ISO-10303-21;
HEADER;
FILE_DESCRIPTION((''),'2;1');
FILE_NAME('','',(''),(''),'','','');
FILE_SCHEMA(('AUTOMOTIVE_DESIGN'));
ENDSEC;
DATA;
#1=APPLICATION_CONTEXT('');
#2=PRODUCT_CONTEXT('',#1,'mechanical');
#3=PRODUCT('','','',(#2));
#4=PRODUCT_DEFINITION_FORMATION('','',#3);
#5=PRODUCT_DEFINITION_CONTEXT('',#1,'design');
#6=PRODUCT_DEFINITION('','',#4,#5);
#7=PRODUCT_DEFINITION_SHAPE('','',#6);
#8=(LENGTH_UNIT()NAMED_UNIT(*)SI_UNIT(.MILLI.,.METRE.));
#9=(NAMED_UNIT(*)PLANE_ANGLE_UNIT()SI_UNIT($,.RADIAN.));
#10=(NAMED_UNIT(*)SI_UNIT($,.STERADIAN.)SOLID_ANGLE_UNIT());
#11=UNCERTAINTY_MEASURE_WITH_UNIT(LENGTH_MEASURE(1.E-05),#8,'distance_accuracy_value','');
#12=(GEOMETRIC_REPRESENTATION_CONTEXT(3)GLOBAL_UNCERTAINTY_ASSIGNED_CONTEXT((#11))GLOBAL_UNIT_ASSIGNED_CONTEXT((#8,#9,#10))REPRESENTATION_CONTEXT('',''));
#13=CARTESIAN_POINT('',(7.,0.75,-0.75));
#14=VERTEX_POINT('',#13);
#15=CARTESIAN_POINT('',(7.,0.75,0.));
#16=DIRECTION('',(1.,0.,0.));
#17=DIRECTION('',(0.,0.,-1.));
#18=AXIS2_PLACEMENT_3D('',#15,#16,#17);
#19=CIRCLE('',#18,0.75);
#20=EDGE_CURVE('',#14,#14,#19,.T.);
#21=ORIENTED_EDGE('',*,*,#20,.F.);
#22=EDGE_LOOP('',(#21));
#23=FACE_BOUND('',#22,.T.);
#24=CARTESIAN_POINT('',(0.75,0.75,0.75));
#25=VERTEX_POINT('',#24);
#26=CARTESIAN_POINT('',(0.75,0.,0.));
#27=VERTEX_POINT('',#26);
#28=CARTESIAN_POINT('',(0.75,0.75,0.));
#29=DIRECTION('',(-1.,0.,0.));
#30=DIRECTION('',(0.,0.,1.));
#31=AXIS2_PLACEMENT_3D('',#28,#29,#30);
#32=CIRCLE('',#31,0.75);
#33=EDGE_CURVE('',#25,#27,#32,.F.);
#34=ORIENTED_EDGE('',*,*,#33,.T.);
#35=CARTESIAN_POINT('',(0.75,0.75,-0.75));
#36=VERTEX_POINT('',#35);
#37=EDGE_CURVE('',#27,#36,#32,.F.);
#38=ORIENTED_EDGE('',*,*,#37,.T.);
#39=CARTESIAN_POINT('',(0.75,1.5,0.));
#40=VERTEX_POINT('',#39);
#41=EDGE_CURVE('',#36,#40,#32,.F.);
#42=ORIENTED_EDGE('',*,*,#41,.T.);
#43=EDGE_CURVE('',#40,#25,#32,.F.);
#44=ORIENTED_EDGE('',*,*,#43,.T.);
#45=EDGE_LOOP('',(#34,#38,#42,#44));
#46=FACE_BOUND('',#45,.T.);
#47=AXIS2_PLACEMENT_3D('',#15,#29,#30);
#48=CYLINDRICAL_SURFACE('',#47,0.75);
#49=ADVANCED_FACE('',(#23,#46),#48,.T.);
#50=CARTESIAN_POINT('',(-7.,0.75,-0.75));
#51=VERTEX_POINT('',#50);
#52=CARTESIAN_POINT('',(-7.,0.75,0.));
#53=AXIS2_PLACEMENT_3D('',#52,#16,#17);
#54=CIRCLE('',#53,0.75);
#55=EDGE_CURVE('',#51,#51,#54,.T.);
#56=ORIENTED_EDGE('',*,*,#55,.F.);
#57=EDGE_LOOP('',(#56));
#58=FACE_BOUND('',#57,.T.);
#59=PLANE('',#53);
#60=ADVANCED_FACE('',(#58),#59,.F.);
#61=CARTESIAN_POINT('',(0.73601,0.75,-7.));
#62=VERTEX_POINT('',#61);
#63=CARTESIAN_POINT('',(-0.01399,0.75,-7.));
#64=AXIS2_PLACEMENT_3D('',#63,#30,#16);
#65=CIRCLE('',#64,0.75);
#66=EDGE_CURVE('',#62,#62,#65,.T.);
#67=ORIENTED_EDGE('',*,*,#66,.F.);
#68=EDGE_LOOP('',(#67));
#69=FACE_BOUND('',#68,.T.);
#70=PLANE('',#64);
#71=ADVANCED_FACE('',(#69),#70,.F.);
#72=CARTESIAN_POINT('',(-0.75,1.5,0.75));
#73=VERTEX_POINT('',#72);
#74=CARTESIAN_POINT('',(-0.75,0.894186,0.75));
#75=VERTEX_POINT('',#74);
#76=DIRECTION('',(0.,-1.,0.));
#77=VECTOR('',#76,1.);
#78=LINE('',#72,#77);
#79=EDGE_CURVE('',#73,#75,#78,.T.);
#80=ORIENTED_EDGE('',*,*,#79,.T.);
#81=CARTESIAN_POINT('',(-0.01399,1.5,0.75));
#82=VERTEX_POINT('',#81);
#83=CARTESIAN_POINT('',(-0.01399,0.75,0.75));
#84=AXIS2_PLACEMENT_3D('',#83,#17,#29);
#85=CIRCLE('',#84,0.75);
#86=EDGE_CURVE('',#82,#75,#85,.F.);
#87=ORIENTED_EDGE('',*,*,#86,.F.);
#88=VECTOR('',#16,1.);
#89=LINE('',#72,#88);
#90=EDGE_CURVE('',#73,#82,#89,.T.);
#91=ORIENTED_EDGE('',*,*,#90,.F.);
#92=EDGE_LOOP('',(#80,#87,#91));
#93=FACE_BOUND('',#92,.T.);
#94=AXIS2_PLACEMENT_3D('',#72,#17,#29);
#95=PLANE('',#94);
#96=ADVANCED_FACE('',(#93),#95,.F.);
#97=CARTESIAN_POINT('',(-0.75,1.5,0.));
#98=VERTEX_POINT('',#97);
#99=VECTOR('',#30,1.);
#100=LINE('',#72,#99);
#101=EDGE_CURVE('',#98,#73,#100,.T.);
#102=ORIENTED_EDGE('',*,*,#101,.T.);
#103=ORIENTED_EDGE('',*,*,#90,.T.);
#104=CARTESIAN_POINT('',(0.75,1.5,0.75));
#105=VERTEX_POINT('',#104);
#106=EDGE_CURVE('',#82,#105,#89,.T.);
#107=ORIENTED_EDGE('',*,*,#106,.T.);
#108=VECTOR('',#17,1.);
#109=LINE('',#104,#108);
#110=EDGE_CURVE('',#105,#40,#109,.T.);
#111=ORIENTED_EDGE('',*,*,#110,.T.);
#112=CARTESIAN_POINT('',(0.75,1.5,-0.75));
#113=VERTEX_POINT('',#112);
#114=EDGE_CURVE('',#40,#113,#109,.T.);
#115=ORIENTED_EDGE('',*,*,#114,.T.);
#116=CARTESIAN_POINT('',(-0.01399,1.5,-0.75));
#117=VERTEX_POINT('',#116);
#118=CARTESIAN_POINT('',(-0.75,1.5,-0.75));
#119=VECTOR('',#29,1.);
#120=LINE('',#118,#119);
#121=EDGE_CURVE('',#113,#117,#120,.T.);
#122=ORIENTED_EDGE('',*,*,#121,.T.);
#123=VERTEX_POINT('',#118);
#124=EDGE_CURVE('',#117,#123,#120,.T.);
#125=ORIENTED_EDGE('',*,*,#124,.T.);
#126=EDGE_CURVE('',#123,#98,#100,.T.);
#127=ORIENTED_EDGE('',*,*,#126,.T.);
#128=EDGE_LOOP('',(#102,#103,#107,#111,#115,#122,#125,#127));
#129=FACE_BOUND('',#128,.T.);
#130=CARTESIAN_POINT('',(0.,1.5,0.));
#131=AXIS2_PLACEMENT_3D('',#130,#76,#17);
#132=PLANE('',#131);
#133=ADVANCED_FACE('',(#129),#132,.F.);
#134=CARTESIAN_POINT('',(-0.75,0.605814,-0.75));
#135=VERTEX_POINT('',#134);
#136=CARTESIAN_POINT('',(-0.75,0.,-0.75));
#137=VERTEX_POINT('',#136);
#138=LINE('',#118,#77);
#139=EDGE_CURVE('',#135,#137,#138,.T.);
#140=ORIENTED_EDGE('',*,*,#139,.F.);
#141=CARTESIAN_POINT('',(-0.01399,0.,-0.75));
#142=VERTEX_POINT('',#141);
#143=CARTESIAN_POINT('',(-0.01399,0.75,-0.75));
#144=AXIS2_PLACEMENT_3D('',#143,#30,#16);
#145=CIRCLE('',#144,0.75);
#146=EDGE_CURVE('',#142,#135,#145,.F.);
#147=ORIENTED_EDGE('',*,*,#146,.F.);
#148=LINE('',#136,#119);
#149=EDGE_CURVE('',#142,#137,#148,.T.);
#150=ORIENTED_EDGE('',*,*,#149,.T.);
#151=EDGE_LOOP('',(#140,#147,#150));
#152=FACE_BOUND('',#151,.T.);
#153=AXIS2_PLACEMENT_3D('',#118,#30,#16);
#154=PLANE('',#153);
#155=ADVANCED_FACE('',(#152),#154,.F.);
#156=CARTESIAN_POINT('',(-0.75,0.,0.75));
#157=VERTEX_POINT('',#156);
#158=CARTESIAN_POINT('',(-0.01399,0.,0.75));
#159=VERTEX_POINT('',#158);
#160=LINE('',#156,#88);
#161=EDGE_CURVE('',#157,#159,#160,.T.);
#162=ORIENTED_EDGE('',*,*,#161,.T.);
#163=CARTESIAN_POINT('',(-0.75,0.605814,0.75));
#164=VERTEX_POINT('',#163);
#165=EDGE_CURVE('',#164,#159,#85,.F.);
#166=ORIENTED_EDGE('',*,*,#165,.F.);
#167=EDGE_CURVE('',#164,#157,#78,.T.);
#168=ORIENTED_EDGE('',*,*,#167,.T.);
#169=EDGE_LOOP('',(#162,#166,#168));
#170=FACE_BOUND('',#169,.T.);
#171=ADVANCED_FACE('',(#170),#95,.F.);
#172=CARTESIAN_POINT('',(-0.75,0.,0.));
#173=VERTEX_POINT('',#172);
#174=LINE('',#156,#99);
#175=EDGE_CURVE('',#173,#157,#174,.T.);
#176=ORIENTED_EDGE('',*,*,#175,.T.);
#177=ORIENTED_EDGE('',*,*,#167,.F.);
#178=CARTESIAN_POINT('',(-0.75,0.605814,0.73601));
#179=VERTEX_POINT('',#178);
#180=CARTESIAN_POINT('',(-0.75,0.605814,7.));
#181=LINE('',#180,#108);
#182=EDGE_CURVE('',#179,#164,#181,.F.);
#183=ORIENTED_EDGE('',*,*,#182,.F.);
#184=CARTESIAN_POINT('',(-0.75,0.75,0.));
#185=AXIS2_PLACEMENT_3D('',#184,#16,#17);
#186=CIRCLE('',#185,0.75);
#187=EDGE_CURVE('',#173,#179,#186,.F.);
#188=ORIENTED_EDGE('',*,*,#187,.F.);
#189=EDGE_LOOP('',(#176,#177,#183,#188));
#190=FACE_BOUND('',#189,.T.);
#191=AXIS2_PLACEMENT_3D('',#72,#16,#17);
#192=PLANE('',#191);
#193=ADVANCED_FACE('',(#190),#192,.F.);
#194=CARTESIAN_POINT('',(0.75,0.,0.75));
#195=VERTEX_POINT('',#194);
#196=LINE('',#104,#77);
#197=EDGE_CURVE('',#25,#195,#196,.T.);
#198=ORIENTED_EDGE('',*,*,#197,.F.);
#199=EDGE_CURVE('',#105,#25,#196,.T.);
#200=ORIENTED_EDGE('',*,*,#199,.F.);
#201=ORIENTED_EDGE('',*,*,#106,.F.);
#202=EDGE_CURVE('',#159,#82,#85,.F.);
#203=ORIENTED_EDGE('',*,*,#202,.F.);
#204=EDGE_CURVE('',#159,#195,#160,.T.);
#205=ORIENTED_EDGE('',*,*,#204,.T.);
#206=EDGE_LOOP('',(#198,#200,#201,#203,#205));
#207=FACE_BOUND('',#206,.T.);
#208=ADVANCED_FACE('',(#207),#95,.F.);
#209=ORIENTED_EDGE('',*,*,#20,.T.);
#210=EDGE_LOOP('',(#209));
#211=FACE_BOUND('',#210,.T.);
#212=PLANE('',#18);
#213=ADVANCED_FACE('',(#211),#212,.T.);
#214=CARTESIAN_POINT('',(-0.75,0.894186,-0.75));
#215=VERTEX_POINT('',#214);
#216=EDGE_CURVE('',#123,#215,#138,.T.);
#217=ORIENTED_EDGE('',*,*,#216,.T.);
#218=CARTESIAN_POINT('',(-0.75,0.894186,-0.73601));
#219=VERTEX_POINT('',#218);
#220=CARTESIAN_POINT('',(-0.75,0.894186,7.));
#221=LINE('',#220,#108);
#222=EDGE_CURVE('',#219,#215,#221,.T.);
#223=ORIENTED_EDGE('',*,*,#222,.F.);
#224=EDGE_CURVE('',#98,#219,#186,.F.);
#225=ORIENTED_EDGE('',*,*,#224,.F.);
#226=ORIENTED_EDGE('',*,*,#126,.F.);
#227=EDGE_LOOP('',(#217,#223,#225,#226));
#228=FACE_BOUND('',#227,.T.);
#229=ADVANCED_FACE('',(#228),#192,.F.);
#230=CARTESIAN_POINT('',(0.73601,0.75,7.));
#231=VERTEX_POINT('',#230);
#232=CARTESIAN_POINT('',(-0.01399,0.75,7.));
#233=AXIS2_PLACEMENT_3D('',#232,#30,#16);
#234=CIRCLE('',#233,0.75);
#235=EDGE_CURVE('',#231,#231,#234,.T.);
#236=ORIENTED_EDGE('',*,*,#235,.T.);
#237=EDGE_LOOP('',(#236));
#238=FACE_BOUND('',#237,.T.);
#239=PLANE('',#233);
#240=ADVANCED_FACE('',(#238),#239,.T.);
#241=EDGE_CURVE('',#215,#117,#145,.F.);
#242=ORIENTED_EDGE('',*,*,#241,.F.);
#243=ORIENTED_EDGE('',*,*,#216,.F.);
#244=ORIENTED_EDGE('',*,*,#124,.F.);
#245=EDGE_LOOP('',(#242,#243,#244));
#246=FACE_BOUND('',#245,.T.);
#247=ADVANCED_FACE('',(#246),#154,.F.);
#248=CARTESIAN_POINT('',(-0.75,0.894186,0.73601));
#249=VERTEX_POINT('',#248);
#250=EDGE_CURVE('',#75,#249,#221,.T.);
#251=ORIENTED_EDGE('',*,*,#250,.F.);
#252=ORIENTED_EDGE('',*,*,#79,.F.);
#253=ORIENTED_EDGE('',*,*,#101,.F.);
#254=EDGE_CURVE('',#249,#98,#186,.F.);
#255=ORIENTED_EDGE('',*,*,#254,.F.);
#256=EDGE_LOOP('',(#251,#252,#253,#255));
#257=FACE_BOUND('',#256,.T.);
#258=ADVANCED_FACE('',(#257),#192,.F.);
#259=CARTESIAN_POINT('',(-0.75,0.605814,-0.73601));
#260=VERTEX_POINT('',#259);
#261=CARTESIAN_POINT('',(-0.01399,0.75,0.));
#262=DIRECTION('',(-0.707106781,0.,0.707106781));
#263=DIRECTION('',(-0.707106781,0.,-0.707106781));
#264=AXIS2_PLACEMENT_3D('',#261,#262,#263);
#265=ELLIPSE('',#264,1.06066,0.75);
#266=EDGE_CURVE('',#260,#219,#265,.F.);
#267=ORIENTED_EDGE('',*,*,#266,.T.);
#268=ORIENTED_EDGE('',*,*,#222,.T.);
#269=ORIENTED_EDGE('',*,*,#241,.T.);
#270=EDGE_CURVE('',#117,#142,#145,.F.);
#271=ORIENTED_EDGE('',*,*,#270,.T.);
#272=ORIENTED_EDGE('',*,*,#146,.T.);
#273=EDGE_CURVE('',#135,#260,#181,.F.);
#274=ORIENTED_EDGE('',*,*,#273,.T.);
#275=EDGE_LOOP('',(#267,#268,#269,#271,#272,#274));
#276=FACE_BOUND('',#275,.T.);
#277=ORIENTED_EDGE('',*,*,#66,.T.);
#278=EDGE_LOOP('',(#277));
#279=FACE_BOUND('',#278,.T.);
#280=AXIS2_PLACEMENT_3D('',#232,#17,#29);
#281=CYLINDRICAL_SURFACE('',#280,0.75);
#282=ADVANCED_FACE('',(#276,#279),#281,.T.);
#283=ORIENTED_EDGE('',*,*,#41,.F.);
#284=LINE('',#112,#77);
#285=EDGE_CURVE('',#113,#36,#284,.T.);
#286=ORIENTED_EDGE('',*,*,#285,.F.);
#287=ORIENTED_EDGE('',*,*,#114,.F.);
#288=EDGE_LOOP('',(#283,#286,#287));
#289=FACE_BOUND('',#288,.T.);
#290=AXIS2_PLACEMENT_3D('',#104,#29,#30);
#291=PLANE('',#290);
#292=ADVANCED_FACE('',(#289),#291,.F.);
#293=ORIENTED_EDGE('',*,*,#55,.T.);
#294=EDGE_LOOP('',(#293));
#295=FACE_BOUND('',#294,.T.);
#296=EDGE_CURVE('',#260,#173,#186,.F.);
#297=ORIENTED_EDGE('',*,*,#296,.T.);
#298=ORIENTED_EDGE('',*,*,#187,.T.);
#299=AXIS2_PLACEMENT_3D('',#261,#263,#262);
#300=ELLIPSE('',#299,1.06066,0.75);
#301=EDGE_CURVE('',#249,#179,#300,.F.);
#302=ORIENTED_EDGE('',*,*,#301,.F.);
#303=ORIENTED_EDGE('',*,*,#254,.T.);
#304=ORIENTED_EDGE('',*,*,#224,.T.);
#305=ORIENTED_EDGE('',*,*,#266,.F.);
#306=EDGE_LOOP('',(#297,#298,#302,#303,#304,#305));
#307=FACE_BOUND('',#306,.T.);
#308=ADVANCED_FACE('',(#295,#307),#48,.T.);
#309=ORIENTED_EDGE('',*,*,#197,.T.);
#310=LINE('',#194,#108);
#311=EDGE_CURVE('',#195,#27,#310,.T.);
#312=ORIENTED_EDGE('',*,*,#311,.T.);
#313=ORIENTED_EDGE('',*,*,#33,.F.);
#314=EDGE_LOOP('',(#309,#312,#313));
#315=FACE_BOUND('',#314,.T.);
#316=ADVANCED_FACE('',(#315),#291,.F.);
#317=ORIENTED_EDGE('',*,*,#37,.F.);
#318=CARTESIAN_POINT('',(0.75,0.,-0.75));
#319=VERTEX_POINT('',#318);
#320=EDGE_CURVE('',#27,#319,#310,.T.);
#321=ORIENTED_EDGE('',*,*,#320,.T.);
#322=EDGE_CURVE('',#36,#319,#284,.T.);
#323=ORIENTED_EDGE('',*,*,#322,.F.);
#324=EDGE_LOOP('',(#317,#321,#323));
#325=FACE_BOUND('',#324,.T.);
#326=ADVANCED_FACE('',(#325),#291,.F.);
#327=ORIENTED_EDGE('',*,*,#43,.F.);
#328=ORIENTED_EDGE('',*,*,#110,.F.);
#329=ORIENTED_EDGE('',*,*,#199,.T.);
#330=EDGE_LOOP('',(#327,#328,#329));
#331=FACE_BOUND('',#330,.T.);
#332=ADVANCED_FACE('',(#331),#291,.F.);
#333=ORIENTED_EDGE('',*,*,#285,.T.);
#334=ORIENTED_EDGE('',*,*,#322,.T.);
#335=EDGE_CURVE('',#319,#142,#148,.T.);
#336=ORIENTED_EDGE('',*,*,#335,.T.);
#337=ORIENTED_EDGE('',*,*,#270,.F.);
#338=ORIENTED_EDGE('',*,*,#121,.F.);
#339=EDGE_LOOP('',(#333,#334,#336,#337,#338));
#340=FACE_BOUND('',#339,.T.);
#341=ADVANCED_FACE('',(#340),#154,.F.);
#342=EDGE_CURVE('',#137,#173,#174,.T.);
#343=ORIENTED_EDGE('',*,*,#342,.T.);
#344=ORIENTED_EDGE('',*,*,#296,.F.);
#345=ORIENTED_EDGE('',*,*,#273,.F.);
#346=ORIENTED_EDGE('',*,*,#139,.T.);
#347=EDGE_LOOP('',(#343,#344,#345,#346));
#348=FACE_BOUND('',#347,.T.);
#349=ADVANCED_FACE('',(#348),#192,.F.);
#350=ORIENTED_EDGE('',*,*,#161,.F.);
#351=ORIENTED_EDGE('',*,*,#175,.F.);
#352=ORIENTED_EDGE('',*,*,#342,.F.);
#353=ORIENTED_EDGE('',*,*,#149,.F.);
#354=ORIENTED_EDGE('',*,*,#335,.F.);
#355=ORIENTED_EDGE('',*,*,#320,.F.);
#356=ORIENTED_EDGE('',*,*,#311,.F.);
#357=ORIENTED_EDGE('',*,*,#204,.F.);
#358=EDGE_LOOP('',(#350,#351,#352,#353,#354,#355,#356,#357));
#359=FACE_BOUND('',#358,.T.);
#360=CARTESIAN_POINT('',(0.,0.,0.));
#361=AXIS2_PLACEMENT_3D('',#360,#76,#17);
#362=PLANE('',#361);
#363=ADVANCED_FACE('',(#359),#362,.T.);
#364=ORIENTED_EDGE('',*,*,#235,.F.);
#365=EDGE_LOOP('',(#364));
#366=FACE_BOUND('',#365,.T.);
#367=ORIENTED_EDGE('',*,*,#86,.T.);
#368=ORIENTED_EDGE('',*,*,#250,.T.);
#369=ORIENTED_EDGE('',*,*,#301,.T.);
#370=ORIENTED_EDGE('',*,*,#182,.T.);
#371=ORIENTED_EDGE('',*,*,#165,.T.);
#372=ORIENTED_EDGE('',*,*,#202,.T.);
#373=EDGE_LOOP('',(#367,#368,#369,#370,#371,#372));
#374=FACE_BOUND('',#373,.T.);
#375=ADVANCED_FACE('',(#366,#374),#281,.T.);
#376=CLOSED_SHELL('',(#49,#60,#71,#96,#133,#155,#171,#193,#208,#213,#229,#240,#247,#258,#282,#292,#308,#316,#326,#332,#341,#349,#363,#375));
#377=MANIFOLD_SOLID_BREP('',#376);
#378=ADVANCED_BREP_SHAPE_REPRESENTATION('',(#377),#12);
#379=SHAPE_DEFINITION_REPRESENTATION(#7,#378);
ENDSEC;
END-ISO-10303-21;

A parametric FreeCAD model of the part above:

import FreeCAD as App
import Part
import Sketcher


def add_polygon(sketch, points):
    """Adds a closed chain of lines whose ends are joined by coincident constraints."""
    first, n = sketch.GeometryCount, len(points)
    for a, b in zip(points, points[1:] + points[:1]):
        sketch.addGeometry(Part.LineSegment(App.Vector(*a, 0), App.Vector(*b, 0)), False)
    for i in range(n):
        sketch.addConstraint(Sketcher.Constraint("Coincident", first + i, 2, first + (i + 1) % n, 1))

doc = App.newDocument("Part")
params = doc.addObject("Spreadsheet::Sheet", "Params")
for row, (alias, value) in enumerate([
    ("sketch1_width", "1.5 mm"),
    ("pad1_length", "1.5 mm"),
    ("sketch2_diameter", "1.5 mm"),
    ("pad2_length", "14 mm"),
    ("sketch3_diameter", "1.5 mm"),
    ("pad3_length", "14 mm"),
], start=1):
    params.set(f"A{row}", alias)
    params.set(f"B{row}", "=" + value)
    params.setAlias(f"B{row}", alias)

body = doc.addObject("PartDesign::Body", "Body")

sketch1 = doc.addObject("Sketcher::SketchObject", "Sketch")
body.addObject(sketch1)
sketch1.AttachmentSupport = (doc.XZ_Plane, [""])
sketch1.MapMode = "FlatFace"
add_polygon(sketch1, [(-0.75, -0.75), (-0.75, 0.75), (0.75, 0.75), (0.75, -0.75)])
sketch1.addConstraint([
    Sketcher.Constraint("Vertical", 0),
    Sketcher.Constraint("Horizontal", 1),
    Sketcher.Constraint("Vertical", 2),
    Sketcher.Constraint("Horizontal", 3),
    Sketcher.Constraint("Symmetric", 0, 2, 2, 2, -1, 1),
    Sketcher.Constraint("Equal", 3, 0),
    Sketcher.Constraint("DistanceX", 1, 1, 1, 2, 1.5),
])
sketch1.setExpression("Constraints[10]", "Params.sketch1_width")
pad1 = doc.addObject("PartDesign::Pad", "Pad")
body.addObject(pad1)
pad1.Profile = sketch1
pad1.setExpression("Length", "Params.pad1_length")
pad1.Reversed = True

sketch2 = doc.addObject("Sketcher::SketchObject", "Sketch001")
body.addObject(sketch2)
sketch2.AttachmentSupport = (doc.YZ_Plane, [""])
sketch2.MapMode = "FlatFace"
sketch2.addGeometry(Part.Circle(App.Vector(0.75, 0, 0), App.Vector(0, 0, 1), 0.75), False)
sketch2.addConstraint([
    Sketcher.Constraint("PointOnObject", 0, 3, -1),
    Sketcher.Constraint("Diameter", 0, 1.5),
    Sketcher.Constraint("DistanceX", -1, 1, 0, 3, 0.75),
])
sketch2.setExpression("Constraints[1]", "Params.sketch2_diameter")
pad2 = doc.addObject("PartDesign::Pad", "Pad001")
body.addObject(pad2)
pad2.Profile = sketch2
pad2.setExpression("Length", "Params.pad2_length")
pad2.Midplane = True

sketch3 = doc.addObject("Sketcher::SketchObject", "Sketch002")
body.addObject(sketch3)
sketch3.AttachmentSupport = (doc.XY_Plane, [""])
sketch3.MapMode = "FlatFace"
sketch3.addGeometry(Part.Circle(App.Vector(-0.01399, 0.75, 0), App.Vector(0, 0, 1), 0.75), False)
sketch3.addConstraint([
    Sketcher.Constraint("Diameter", 0, 1.5),
    Sketcher.Constraint("DistanceY", -1, 1, 0, 3, 0.75),
    Sketcher.Constraint("DistanceX", 0, 3, -1, 1, 0.01399),
])
sketch3.setExpression("Constraints[0]", "Params.sketch3_diameter")
pad3 = doc.addObject("PartDesign::Pad", "Pad002")
body.addObject(pad3)
pad3.Profile = sketch3
pad3.setExpression("Length", "Params.pad3_length")
pad3.Midplane = True

doc.recompute()
